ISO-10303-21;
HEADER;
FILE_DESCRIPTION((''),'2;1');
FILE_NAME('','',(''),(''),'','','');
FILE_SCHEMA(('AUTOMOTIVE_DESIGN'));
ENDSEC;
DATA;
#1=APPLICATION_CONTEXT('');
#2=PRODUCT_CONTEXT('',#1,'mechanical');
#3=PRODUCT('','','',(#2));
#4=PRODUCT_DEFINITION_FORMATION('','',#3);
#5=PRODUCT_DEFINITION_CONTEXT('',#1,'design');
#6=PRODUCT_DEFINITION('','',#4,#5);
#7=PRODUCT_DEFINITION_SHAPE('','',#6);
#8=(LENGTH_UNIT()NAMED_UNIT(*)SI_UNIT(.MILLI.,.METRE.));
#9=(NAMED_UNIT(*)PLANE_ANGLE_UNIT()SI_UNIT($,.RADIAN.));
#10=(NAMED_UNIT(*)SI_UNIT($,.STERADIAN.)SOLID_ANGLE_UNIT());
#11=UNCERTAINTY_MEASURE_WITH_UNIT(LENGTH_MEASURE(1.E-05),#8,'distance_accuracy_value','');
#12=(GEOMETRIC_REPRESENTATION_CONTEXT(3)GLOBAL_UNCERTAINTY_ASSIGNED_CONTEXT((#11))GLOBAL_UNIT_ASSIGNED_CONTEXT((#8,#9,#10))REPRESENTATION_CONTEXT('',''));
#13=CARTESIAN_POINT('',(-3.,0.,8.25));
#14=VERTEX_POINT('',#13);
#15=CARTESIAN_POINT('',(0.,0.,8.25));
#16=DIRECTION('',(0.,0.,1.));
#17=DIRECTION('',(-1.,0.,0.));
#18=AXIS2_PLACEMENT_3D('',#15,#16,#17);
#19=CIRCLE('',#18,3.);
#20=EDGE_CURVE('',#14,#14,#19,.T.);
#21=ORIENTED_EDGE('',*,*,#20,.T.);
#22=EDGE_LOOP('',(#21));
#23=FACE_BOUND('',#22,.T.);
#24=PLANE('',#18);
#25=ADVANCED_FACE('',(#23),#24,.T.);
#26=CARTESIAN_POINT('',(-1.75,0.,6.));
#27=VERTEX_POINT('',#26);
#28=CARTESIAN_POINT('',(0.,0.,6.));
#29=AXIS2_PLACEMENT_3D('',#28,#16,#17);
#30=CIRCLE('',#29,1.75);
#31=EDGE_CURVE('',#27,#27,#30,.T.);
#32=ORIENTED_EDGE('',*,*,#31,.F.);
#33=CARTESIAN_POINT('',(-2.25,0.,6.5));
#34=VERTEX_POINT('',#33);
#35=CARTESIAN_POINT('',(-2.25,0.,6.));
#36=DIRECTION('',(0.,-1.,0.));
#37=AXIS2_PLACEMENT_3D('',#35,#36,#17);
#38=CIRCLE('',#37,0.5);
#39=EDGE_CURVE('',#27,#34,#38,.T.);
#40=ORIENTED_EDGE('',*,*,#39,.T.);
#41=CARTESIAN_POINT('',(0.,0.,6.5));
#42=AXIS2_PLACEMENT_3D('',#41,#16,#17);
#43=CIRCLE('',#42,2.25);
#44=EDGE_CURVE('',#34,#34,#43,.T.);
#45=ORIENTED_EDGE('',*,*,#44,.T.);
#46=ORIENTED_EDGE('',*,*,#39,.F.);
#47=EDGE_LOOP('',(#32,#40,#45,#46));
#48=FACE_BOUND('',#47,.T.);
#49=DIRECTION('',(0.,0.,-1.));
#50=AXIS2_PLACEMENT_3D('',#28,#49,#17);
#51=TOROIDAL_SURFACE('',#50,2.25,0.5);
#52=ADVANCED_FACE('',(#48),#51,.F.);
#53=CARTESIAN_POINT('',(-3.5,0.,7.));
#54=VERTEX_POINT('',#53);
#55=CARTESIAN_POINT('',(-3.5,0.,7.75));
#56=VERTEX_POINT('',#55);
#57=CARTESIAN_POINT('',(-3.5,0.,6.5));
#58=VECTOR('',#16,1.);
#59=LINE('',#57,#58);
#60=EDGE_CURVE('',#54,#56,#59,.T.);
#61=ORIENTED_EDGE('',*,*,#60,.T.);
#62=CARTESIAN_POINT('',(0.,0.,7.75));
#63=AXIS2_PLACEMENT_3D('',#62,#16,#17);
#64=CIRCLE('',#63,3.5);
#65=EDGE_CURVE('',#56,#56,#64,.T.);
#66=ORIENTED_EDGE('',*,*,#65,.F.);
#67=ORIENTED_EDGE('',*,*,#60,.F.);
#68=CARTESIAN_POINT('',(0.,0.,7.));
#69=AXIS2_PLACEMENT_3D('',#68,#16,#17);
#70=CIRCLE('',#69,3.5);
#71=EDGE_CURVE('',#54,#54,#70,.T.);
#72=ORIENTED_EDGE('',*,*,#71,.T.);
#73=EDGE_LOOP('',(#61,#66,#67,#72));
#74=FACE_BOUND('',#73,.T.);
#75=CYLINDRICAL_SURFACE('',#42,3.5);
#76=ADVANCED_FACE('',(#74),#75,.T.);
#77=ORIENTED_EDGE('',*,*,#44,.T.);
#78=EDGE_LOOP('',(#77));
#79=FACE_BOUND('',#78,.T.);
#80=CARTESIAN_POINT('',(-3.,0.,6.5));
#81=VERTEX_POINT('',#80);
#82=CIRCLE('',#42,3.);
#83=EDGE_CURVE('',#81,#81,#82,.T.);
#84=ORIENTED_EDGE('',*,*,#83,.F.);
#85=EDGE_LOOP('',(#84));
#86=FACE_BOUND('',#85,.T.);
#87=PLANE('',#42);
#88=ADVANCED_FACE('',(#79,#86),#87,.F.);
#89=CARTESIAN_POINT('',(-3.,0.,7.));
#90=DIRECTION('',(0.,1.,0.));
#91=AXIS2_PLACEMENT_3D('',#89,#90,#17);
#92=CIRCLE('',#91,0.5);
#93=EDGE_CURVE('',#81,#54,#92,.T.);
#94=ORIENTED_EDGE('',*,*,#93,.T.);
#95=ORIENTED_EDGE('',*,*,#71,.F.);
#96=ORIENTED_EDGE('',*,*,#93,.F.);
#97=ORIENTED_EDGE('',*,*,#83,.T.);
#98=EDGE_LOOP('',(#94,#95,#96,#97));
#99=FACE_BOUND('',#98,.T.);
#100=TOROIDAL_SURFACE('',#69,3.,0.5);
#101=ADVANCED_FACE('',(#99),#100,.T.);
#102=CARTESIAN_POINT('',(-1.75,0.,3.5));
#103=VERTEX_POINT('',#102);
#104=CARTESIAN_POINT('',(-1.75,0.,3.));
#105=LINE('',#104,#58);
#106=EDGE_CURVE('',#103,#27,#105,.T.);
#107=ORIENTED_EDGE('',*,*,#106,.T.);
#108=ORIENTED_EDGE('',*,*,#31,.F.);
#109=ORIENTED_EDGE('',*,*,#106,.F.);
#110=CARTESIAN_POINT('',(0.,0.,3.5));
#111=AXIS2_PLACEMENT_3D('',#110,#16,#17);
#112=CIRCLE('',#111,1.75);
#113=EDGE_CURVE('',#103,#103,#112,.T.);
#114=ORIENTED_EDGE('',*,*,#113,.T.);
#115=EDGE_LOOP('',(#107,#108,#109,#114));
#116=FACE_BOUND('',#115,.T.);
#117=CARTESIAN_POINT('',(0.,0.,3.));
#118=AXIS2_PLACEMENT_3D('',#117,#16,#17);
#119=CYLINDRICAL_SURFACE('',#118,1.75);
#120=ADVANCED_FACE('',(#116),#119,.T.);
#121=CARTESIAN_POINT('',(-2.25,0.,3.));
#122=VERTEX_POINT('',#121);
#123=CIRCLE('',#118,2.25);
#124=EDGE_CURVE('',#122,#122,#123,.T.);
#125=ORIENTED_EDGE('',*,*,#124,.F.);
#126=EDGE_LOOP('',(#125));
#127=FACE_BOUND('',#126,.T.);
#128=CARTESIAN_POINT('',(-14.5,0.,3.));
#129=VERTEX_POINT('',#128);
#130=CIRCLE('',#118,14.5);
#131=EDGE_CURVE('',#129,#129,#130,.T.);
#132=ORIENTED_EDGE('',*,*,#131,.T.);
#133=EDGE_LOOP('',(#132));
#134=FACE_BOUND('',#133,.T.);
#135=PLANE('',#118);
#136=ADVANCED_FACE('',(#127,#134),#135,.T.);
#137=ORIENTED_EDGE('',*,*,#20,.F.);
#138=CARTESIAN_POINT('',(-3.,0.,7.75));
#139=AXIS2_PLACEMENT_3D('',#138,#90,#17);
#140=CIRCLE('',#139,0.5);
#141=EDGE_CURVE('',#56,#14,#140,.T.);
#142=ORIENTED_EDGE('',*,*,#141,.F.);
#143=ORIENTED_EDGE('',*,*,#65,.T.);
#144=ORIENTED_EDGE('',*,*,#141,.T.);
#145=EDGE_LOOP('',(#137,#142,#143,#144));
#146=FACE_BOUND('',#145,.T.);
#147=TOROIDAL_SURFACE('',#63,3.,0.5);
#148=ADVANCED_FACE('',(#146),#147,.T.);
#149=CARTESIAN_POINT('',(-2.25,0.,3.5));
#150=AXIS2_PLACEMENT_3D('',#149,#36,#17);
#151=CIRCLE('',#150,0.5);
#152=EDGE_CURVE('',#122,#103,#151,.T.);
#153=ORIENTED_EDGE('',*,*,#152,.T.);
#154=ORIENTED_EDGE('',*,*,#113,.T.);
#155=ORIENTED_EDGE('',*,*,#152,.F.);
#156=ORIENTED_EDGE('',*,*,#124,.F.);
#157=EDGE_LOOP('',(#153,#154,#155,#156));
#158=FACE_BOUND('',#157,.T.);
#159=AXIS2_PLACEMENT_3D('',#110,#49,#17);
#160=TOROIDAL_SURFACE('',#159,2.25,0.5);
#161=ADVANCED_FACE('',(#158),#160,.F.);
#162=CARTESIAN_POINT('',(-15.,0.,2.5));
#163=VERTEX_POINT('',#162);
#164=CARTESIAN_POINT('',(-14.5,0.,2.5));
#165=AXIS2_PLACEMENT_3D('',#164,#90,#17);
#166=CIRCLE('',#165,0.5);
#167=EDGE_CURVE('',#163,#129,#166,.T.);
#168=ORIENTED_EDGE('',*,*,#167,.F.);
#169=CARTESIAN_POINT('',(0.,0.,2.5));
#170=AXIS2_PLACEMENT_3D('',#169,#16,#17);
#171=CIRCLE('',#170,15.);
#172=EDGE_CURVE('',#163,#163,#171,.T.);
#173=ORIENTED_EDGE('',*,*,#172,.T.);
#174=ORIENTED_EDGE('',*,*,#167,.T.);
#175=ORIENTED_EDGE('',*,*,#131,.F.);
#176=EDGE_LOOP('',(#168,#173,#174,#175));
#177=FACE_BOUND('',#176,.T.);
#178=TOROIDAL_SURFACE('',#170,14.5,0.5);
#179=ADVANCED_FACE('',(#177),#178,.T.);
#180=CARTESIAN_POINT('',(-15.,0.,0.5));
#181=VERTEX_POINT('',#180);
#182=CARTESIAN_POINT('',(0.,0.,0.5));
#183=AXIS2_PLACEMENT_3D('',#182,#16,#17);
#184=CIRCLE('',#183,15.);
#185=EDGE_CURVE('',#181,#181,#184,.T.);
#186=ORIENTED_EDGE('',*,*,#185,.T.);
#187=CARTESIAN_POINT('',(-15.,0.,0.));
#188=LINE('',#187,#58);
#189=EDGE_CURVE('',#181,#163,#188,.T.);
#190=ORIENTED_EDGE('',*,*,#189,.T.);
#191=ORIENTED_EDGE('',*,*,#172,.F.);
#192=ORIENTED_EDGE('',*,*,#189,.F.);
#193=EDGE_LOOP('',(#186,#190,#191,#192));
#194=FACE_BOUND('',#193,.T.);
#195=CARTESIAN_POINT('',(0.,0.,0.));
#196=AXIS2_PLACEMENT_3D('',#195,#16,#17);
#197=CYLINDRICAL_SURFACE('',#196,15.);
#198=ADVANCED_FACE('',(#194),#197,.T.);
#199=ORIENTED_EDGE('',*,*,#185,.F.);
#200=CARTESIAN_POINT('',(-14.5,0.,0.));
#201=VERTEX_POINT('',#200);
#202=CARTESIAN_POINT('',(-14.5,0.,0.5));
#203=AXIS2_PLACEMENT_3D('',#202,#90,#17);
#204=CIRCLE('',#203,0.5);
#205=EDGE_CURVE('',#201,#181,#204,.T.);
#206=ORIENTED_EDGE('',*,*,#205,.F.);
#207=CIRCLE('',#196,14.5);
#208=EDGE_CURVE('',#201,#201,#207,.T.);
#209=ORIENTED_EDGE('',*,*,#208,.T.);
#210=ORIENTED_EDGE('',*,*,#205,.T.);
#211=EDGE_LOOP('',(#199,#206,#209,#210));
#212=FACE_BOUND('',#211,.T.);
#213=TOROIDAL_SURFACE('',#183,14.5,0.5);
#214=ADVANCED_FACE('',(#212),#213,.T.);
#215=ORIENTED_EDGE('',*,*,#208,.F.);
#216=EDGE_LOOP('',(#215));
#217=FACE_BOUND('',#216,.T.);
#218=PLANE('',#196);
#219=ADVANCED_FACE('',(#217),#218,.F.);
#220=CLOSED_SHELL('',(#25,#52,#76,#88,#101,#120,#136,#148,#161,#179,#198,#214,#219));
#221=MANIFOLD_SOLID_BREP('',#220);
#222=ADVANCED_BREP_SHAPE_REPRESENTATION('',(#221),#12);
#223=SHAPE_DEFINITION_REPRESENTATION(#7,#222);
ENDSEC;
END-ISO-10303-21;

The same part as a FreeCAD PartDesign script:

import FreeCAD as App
import Part
import Sketcher

V = App.Vector


def add_polygon(sketch, points):
    """Adds a closed chain of lines whose ends are joined by coincident constraints."""
    first, n = sketch.GeometryCount, len(points)
    for a, b in zip(points, points[1:] + points[:1]):
        sketch.addGeometry(Part.LineSegment(App.Vector(*a, 0), App.Vector(*b, 0)), False)
    for i in range(n):
        sketch.addConstraint(Sketcher.Constraint("Coincident", first + i, 2, first + (i + 1) % n, 1))

doc = App.newDocument("Part")
params = doc.addObject("Spreadsheet::Sheet", "Params")
for row, (alias, value) in enumerate([
    ("sketch1_width", "15 mm"),
    ("sketch1_height", "3 mm"),
    ("sketch1_width2", "3.5 mm"),
    ("sketch1_width3", "1.75 mm"),
    ("revolution_angle", "360 deg"),
    ("fillet_radius", "0.5 mm"),
], start=1):
    params.set(f"A{row}", alias)
    params.set(f"B{row}", "=" + value)
    params.setAlias(f"B{row}", alias)

body = doc.addObject("PartDesign::Body", "Body")

# Sketch on XZ plane
sketch1 = body.newObject("Sketcher::SketchObject", "Sketch")
sketch1.AttachmentSupport = (doc.getObject("XZ_Plane"), [""])
sketch1.MapMode = "FlatFace"
add_polygon(sketch1, [(-15, 0), (0, 0), (0, 8.2), (-3.5, 8.2), (-3.5, 6.5), (-1.8, 6.5), (-1.8, 3), (-15, 3)])  # lines 0-7
sketch1.addConstraint([
    Sketcher.Constraint("Horizontal", 0),
    Sketcher.Constraint("Vertical", 1),
    Sketcher.Constraint("Horizontal", 2),
    Sketcher.Constraint("Vertical", 3),
    Sketcher.Constraint("Horizontal", 4),
    Sketcher.Constraint("Vertical", 5),
    Sketcher.Constraint("Horizontal", 6),
    Sketcher.Constraint("Vertical", 7),
    Sketcher.Constraint("Coincident", 0, 2, -1, 1),
    Sketcher.Constraint("Equal", 4, 3),
    Sketcher.Constraint("Equal", 2, 5),
    Sketcher.Constraint("DistanceX", 0, 1, 0, 2, 15.0),
    Sketcher.Constraint("DistanceY", 7, 2, 7, 1, 3.0),
    Sketcher.Constraint("DistanceX", 2, 2, 2, 1, 3.5),
    Sketcher.Constraint("DistanceX", 4, 1, 4, 2, 1.75),
])
sketch1.setExpression("Constraints[19]", "Params.sketch1_width")
sketch1.setExpression("Constraints[20]", "Params.sketch1_height")
sketch1.setExpression("Constraints[21]", "Params.sketch1_width2")
sketch1.setExpression("Constraints[22]", "Params.sketch1_width3")
revolution = body.newObject("PartDesign::Revolution", "Revolution")
revolution.Profile = sketch1
revolution.ReferenceAxis = (sketch1, ["V_Axis"])
revolution.setExpression("Angle", "Params.revolution_angle")
doc.recompute()

fillet = body.newObject("PartDesign::Fillet", "Fillet")
fillet.Base = (revolution, ["Edge1"])
fillet.UseAllEdges = True
fillet.setExpression("Radius", "Params.fillet_radius")

doc.recompute()
